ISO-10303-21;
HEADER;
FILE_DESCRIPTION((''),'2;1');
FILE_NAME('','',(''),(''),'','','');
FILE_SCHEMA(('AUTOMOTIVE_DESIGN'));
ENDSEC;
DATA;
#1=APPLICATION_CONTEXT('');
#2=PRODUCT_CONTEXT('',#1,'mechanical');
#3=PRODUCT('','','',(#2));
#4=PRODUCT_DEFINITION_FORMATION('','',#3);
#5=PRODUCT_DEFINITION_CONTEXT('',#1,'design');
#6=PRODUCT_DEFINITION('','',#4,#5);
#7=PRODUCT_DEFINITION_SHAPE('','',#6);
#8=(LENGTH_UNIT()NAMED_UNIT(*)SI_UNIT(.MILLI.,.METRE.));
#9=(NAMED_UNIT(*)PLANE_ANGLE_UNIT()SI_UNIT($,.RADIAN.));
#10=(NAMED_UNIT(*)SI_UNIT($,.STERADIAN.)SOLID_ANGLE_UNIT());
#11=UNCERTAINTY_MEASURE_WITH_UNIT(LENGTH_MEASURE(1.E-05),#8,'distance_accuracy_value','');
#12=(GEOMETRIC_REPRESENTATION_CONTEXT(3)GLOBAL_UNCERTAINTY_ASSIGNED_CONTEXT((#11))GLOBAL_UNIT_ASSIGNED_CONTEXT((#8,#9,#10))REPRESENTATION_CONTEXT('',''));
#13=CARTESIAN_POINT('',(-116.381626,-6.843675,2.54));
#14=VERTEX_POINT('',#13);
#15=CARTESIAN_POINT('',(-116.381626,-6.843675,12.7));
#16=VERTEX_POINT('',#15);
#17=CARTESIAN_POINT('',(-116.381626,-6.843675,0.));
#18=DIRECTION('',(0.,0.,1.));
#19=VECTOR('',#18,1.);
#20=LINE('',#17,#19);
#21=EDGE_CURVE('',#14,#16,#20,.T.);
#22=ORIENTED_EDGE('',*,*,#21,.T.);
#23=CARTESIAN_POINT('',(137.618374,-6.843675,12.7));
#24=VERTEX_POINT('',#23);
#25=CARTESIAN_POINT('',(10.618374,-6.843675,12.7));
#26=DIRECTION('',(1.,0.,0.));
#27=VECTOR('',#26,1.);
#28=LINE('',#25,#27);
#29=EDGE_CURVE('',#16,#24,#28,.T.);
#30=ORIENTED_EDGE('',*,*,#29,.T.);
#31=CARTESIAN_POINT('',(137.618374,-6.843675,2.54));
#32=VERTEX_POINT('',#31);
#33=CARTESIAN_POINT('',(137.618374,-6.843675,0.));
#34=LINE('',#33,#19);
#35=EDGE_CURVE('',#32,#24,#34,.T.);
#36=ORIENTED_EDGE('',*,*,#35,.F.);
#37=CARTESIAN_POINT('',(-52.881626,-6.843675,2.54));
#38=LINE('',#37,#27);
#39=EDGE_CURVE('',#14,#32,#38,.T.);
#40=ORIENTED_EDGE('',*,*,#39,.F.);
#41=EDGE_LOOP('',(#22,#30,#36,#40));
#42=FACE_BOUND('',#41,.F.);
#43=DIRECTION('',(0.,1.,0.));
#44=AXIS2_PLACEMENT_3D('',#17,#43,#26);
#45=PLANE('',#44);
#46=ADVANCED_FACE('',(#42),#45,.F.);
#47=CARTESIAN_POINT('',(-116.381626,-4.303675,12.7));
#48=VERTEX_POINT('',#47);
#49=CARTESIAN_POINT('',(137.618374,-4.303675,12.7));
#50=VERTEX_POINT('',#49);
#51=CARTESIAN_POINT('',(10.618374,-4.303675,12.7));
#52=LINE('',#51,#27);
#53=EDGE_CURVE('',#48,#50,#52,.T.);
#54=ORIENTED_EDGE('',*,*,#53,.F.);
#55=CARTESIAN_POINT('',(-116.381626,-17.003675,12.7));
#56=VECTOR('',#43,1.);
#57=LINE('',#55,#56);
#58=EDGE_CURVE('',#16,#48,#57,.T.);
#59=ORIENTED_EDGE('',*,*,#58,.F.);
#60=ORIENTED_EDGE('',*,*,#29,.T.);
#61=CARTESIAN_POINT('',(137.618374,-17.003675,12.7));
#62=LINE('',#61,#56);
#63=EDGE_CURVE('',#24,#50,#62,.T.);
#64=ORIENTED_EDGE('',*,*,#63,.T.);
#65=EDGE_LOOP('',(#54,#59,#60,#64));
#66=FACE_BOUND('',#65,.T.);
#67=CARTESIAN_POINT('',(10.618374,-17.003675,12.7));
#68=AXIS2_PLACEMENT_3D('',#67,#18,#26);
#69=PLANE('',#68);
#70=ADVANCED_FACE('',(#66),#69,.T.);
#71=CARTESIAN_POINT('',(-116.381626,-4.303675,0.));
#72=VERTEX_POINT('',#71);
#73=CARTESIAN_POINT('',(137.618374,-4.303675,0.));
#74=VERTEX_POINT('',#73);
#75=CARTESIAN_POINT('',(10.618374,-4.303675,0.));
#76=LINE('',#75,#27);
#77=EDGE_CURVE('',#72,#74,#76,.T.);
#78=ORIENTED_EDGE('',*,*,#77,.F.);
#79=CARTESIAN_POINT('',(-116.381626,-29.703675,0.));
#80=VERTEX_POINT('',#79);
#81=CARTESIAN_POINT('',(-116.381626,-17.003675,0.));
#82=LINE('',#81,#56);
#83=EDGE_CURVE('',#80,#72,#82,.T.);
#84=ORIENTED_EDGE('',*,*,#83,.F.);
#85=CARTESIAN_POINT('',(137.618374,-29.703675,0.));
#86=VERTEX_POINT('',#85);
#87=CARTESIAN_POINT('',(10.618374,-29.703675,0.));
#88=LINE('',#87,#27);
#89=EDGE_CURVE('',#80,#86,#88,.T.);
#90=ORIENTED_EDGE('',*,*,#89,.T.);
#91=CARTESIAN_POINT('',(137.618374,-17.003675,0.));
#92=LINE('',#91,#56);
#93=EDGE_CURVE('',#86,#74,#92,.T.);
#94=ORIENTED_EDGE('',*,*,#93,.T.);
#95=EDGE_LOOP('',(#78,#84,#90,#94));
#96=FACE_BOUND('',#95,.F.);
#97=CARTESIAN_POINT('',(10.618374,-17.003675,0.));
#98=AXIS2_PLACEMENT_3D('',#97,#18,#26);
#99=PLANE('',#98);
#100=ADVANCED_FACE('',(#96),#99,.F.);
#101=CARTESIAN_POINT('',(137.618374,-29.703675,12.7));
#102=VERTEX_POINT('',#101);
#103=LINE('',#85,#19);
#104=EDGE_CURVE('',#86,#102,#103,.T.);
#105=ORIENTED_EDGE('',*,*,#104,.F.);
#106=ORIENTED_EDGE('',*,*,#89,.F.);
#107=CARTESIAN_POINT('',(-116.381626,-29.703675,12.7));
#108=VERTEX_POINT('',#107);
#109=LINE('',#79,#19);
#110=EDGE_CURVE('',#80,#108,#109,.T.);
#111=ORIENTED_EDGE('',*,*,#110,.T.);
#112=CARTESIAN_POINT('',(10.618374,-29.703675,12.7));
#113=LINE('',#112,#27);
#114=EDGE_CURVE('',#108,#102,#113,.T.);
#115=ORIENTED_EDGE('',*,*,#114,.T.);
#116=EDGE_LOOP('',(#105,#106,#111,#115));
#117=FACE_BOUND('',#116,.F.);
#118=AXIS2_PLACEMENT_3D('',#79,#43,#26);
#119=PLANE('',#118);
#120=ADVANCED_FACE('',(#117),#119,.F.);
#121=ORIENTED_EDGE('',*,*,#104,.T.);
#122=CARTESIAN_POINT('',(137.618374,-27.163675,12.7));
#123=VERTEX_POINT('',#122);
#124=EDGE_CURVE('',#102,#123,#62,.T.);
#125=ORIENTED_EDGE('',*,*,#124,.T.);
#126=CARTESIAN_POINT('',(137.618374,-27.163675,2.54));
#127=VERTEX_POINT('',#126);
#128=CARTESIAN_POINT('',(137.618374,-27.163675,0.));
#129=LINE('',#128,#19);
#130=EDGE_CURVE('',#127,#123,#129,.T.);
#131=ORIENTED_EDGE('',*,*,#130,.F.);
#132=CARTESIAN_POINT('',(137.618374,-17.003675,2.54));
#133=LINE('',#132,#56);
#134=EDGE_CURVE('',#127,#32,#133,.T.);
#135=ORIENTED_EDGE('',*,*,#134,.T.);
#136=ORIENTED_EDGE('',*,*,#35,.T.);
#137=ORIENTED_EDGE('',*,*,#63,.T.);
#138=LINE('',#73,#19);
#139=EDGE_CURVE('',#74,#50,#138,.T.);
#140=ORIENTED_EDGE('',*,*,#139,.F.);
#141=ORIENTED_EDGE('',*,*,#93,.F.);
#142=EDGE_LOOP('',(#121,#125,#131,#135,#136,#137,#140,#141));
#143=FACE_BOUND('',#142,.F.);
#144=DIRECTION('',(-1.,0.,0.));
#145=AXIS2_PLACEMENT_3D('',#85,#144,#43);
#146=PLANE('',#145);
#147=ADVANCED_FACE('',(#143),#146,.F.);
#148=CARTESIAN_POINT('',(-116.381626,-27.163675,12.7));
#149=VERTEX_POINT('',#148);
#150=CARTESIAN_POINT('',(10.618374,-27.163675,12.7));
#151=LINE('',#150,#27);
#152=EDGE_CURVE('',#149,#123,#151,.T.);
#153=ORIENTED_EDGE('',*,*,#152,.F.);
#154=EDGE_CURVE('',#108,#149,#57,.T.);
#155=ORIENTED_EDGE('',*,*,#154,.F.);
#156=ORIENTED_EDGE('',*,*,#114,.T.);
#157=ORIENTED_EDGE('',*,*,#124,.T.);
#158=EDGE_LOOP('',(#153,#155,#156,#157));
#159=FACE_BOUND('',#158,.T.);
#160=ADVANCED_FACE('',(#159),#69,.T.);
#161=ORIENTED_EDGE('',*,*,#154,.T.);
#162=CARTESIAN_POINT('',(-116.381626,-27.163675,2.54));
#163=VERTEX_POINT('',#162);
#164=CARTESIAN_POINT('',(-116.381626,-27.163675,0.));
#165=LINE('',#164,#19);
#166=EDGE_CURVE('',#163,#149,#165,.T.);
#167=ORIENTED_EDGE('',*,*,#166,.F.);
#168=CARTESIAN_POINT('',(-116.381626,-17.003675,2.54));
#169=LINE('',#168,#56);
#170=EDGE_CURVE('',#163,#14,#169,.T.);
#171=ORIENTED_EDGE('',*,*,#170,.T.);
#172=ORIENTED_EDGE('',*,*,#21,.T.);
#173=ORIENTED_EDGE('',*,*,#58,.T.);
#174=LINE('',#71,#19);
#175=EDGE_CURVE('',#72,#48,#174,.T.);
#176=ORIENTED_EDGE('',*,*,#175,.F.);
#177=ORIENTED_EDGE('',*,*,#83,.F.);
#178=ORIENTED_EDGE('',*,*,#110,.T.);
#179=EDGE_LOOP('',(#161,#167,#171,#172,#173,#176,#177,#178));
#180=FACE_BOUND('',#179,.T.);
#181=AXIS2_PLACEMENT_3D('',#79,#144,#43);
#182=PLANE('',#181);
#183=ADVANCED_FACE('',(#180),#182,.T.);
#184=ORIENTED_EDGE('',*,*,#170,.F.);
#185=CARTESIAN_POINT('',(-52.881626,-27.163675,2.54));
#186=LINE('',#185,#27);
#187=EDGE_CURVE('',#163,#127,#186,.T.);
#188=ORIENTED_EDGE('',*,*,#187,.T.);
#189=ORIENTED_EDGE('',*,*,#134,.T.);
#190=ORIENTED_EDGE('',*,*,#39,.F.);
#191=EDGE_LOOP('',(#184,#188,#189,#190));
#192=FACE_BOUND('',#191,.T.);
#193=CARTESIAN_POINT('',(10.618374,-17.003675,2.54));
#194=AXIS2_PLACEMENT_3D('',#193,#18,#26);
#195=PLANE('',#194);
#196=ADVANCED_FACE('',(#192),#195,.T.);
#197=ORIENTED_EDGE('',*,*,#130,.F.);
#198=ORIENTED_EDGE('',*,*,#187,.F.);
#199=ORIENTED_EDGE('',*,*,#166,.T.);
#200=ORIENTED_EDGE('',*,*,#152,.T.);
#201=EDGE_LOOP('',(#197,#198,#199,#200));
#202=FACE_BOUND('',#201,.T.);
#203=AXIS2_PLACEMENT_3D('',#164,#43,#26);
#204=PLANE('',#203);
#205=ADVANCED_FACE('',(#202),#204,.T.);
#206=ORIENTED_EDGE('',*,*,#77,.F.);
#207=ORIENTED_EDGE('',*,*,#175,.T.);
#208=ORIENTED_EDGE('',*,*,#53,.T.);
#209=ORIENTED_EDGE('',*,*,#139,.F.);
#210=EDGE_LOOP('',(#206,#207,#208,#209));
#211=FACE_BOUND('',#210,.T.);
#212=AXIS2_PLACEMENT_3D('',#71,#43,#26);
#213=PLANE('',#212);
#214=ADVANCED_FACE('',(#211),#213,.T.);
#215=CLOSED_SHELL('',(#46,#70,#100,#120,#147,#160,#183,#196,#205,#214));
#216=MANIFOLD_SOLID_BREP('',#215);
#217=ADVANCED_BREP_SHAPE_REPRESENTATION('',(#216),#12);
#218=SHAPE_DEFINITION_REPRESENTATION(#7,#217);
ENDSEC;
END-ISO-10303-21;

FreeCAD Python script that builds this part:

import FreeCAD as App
import Part
import Sketcher
from FreeCAD import Vector
Q = App.Units.Quantity


def faces_at(feature, points):
    """Names of the faces that lie closest to the given points."""
    faces = feature.Shape.Faces
    near = lambda p: min(range(len(faces)), key=lambda i: faces[i].distToShape(Part.Vertex(*p))[0])
    return sorted({f"Face{near(p) + 1}" for p in points})

doc = App.newDocument("Part")
params = doc.addObject("Spreadsheet::Sheet", "Params")
for row, (alias, value) in enumerate([
    ("sketch1_width", "10 in"),
    ("sketch1_height", "1 in"),
    ("pad1_length", "0.5 in"),
    ("thickness_wall", "0.1 in"),
], start=1):
    params.set(f"A{row}", alias)
    params.set(f"B{row}", "=" + value)
    params.setAlias(f"B{row}", alias)

body = doc.addObject("PartDesign::Body", "Body")

# Sketch on XY plane
sketch1 = body.newObject("Sketcher::SketchObject", "Sketch")
sketch1.AttachmentSupport = (doc.getObject("XY_Plane"), [""])
sketch1.MapMode = "FlatFace"
sketch1.addGeometry(Part.LineSegment(Vector(-116, -4, 0), Vector(-116, -30, 0)), False)
sketch1.addGeometry(Part.LineSegment(Vector(-116, -30, 0), Vector(138, -30, 0)), False)
sketch1.addGeometry(Part.LineSegment(Vector(138, -30, 0), Vector(138, -4, 0)), False)
sketch1.addGeometry(Part.LineSegment(Vector(138, -4, 0), Vector(-116, -4, 0)), False)
sketch1.addConstraint(Sketcher.Constraint("Coincident", 0, 2, 1, 1))
sketch1.addConstraint(Sketcher.Constraint("Coincident", 1, 2, 2, 1))
sketch1.addConstraint(Sketcher.Constraint("Coincident", 2, 2, 3, 1))
sketch1.addConstraint(Sketcher.Constraint("Coincident", 3, 2, 0, 1))
sketch1.addConstraint(Sketcher.Constraint("Vertical", 0))
sketch1.addConstraint(Sketcher.Constraint("Horizontal", 1))
sketch1.addConstraint(Sketcher.Constraint("Vertical", 2))
sketch1.addConstraint(Sketcher.Constraint("Horizontal", 3))
sketch1.addConstraint(Sketcher.Constraint("DistanceX", 1, 1, 1, 2, Q("10 in")))
sketch1.addConstraint(Sketcher.Constraint("DistanceY", 0, 2, 0, 1, Q("1 in")))
sketch1.addConstraint(Sketcher.Constraint("DistanceX", 0, 2, -1, 1, Q("116.381626 mm")))
sketch1.addConstraint(Sketcher.Constraint("DistanceY", 0, 2, -1, 1, Q("29.703675 mm")))
sketch1.setExpression("Constraints[8]", "Params.sketch1_width")
sketch1.setExpression("Constraints[9]", "Params.sketch1_height")
pad1 = body.newObject("PartDesign::Pad", "Pad")
pad1.Profile = sketch1
pad1.setExpression("Length", "Params.pad1_length")
doc.recompute()

thickness = body.newObject("PartDesign::Thickness", "Thickness")
thickness.Base = (pad1, faces_at(pad1, [(10.618, -17.004, 12.7), (137.618, -17.004, 6.35), (-116.382, -17.004, 6.35)]))
thickness.setExpression("Value", "Params.thickness_wall")
thickness.Reversed = True
thickness.Join = "Arc"

doc.recompute()
